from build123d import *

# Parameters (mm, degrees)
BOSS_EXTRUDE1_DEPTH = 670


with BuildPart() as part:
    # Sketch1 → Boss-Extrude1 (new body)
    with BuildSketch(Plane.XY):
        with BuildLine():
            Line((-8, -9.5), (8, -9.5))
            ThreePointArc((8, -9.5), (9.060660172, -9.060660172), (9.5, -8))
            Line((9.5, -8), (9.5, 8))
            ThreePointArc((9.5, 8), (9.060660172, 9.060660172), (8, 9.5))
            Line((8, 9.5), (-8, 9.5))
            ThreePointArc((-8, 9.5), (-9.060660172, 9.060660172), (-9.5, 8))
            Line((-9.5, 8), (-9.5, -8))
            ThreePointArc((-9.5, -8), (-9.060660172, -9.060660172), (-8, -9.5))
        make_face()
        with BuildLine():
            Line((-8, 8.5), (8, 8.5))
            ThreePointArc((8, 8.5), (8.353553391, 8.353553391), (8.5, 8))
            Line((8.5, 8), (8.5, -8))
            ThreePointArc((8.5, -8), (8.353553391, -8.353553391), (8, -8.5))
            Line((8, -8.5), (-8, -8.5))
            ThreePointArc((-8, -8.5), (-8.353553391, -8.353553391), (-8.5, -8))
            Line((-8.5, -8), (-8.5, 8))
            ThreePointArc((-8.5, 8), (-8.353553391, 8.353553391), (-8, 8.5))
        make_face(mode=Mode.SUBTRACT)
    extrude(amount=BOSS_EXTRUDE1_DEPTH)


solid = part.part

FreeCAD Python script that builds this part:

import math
import FreeCAD as App
import Part
import Sketcher

doc = App.newDocument("Part")
body = doc.addObject("PartDesign::Body", "Body")

# Sketch on XY plane
sketch1 = body.newObject("Sketcher::SketchObject", "Sketch")
sketch1.AttachmentSupport = (doc.getObject("XY_Plane"), [""])
sketch1.MapMode = "FlatFace"
sketch1.addGeometry(Part.LineSegment(App.Vector(-8, -9.5, 0), App.Vector(8, -9.5, 0)), False)
sketch1.addGeometry(Part.ArcOfCircle(Part.Circle(App.Vector(8, -8, 0), App.Vector(0, 0, 1), 1.5), math.radians(-90), math.radians(0)), False)
sketch1.addGeometry(Part.LineSegment(App.Vector(9.5, -8, 0), App.Vector(9.5, 8, 0)), False)
sketch1.addGeometry(Part.ArcOfCircle(Part.Circle(App.Vector(8, 8, 0), App.Vector(0, 0, 1), 1.5), math.radians(0), math.radians(90)), False)
sketch1.addGeometry(Part.LineSegment(App.Vector(8, 9.5, 0), App.Vector(-8, 9.5, 0)), False)
sketch1.addGeometry(Part.ArcOfCircle(Part.Circle(App.Vector(-8, 8, 0), App.Vector(0, 0, 1), 1.5), math.radians(90), math.radians(180)), False)
sketch1.addGeometry(Part.LineSegment(App.Vector(-9.5, 8, 0), App.Vector(-9.5, -8, 0)), False)
sketch1.addGeometry(Part.ArcOfCircle(Part.Circle(App.Vector(-8, -8, 0), App.Vector(0, 0, 1), 1.5), math.radians(180), math.radians(270)), False)
sketch1.addGeometry(Part.ArcOfCircle(Part.Circle(App.Vector(-8, 8, 0), App.Vector(0, 0, 1), 0.5), math.radians(90), math.radians(180)), False)
sketch1.addGeometry(Part.LineSegment(App.Vector(-8, 8.5, 0), App.Vector(8, 8.5, 0)), False)
sketch1.addGeometry(Part.ArcOfCircle(Part.Circle(App.Vector(8, 8, 0), App.Vector(0, 0, 1), 0.5), math.radians(0), math.radians(90)), False)
sketch1.addGeometry(Part.LineSegment(App.Vector(8.5, 8, 0), App.Vector(8.5, -8, 0)), False)
sketch1.addGeometry(Part.ArcOfCircle(Part.Circle(App.Vector(8, -8, 0), App.Vector(0, 0, 1), 0.5), math.radians(-90), math.radians(0)), False)
sketch1.addGeometry(Part.LineSegment(App.Vector(8, -8.5, 0), App.Vector(-8, -8.5, 0)), False)
sketch1.addGeometry(Part.ArcOfCircle(Part.Circle(App.Vector(-8, -8, 0), App.Vector(0, 0, 1), 0.5), math.radians(180), math.radians(270)), False)
sketch1.addGeometry(Part.LineSegment(App.Vector(-8.5, -8, 0), App.Vector(-8.5, 8, 0)), False)
sketch1.addConstraint(Sketcher.Constraint("Tangent", 0, 2, 1, 1))
sketch1.addConstraint(Sketcher.Constraint("Tangent", 1, 2, 2, 1))
sketch1.addConstraint(Sketcher.Constraint("Tangent", 2, 2, 3, 1))
sketch1.addConstraint(Sketcher.Constraint("Tangent", 3, 2, 4, 1))
sketch1.addConstraint(Sketcher.Constraint("Tangent", 4, 2, 5, 1))
sketch1.addConstraint(Sketcher.Constraint("Tangent", 5, 2, 6, 1))
sketch1.addConstraint(Sketcher.Constraint("Tangent", 6, 2, 7, 1))
sketch1.addConstraint(Sketcher.Constraint("Tangent", 7, 2, 0, 1))
sketch1.addConstraint(Sketcher.Constraint("Tangent", 8, 1, 9, 1))
sketch1.addConstraint(Sketcher.Constraint("Tangent", 9, 2, 10, 2))
sketch1.addConstraint(Sketcher.Constraint("Tangent", 10, 1, 11, 1))
sketch1.addConstraint(Sketcher.Constraint("Tangent", 11, 2, 12, 2))
sketch1.addConstraint(Sketcher.Constraint("Tangent", 12, 1, 13, 1))
sketch1.addConstraint(Sketcher.Constraint("Tangent", 13, 2, 14, 2))
sketch1.addConstraint(Sketcher.Constraint("Tangent", 14, 1, 15, 1))
sketch1.addConstraint(Sketcher.Constraint("Tangent", 15, 2, 8, 2))
sketch1.addConstraint(Sketcher.Constraint("Horizontal", 0))
sketch1.addConstraint(Sketcher.Constraint("Vertical", 2))
sketch1.addConstraint(Sketcher.Constraint("Horizontal", 4))
sketch1.addConstraint(Sketcher.Constraint("Vertical", 6))
sketch1.addConstraint(Sketcher.Constraint("Horizontal", 9))
sketch1.addConstraint(Sketcher.Constraint("Vertical", 11))
sketch1.addConstraint(Sketcher.Constraint("Horizontal", 13))
sketch1.addConstraint(Sketcher.Constraint("Vertical", 15))
sketch1.addConstraint(Sketcher.Constraint("Coincident", 8, 3, 5, 3))
sketch1.addConstraint(Sketcher.Constraint("Coincident", 10, 3, 3, 3))
sketch1.addConstraint(Sketcher.Constraint("Coincident", 12, 3, 1, 3))
sketch1.addConstraint(Sketcher.Constraint("Equal", 1, 3))
sketch1.addConstraint(Sketcher.Constraint("Equal", 3, 5))
sketch1.addConstraint(Sketcher.Constraint("Equal", 5, 7))
sketch1.addConstraint(Sketcher.Constraint("Equal", 12, 14))
sketch1.addConstraint(Sketcher.Constraint("Symmetric", 1, 3, 5, 3, -1, 1))
sketch1.addConstraint(Sketcher.Constraint("Equal", 13, 2))
sketch1.addConstraint(Sketcher.Constraint("Radius", 1, 1.5))
sketch1.addConstraint(Sketcher.Constraint("Radius", 8, 0.5))
sketch1.addConstraint(Sketcher.Constraint("DistanceX", 0, 1, 0, 2, 16.0))
pad1 = body.newObject("PartDesign::Pad", "Pad")
pad1.Profile = sketch1
pad1.Length = 670

doc.recompute()
